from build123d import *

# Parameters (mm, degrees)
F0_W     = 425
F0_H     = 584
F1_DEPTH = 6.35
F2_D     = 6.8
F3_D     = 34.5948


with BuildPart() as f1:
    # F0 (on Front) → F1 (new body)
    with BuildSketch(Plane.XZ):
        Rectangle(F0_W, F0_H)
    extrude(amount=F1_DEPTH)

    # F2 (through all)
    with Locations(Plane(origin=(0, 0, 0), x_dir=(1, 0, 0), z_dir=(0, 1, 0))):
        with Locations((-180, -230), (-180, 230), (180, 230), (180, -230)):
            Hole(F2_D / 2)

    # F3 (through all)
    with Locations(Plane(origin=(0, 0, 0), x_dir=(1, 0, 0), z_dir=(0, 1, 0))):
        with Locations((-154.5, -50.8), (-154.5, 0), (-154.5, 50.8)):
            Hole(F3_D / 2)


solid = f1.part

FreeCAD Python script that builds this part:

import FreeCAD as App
import Part
import Sketcher

V = App.Vector
Q = App.Units.Quantity


def add_polygon(sketch, points):
    """Adds a closed chain of lines whose ends are joined by coincident constraints."""
    first, n = sketch.GeometryCount, len(points)
    for a, b in zip(points, points[1:] + points[:1]):
        sketch.addGeometry(Part.LineSegment(App.Vector(*a, 0), App.Vector(*b, 0)), False)
    for i in range(n):
        sketch.addConstraint(Sketcher.Constraint("Coincident", first + i, 2, first + (i + 1) % n, 1))

doc = App.newDocument("Part")
body = doc.addObject("PartDesign::Body", "Body")

sketch1 = body.newObject("Sketcher::SketchObject", "Sketch")
sketch1.AttachmentSupport = (doc.getObject("XZ_Plane"), [""])
sketch1.MapMode = "FlatFace"
add_polygon(sketch1, [(-212, 292), (-212, -292), (212, -292), (212, 292)])
sketch1.addConstraint(Sketcher.Constraint("Vertical", 0))
sketch1.addConstraint(Sketcher.Constraint("Horizontal", 1))
sketch1.addConstraint(Sketcher.Constraint("Vertical", 2))
sketch1.addConstraint(Sketcher.Constraint("Horizontal", 3))
sketch1.addConstraint(Sketcher.Constraint("Symmetric", 0, 2, 2, 2, -1, 1))
sketch1.addConstraint(Sketcher.Constraint("DistanceX", 1, 1, 1, 2, Q("425 mm")))
sketch1.addConstraint(Sketcher.Constraint("DistanceY", 0, 2, 0, 1, Q("584 mm")))
pad1 = body.newObject("PartDesign::Pad", "Pad")
pad1.Profile = sketch1
pad1.Length = 6.35

sketch2 = body.newObject("Sketcher::SketchObject", "Sketch001")
sketch2.AttachmentSupport = (doc.getObject("XZ_Plane"), [""])
sketch2.MapMode = "FlatFace"
sketch2.addGeometry(Part.Circle(V(-180, 230, 0), V(0, 0, 1), 3.4), False)
sketch2.addGeometry(Part.Circle(V(-180, -230, 0), V(0, 0, 1), 3.4), False)
sketch2.addGeometry(Part.Circle(V(180, -230, 0), V(0, 0, 1), 3.4), False)
sketch2.addGeometry(Part.Circle(V(180, 230, 0), V(0, 0, 1), 3.4), False)
sketch2.addConstraint(Sketcher.Constraint("Equal", 0, 1))
sketch2.addConstraint(Sketcher.Constraint("Equal", 1, 2))
sketch2.addConstraint(Sketcher.Constraint("Equal", 2, 3))
sketch2.addConstraint(Sketcher.Constraint("Symmetric", 0, 3, 2, 3, -1, 1))
sketch2.addConstraint(Sketcher.Constraint("Symmetric", 1, 3, 3, 3, -1, 1))
sketch2.addConstraint(Sketcher.Constraint("Symmetric", 1, 3, 2, 3, -2))
sketch2.addConstraint(Sketcher.Constraint("Diameter", 0, Q("6.8 mm")))
sketch2.addConstraint(Sketcher.Constraint("DistanceX", 0, 3, -1, 1, Q("180 mm")))
sketch2.addConstraint(Sketcher.Constraint("DistanceY", -1, 1, 0, 3, Q("230 mm")))
doc.recompute()
hole = body.newObject("PartDesign::Hole", "Hole")
hole.Profile = sketch2
hole.ThreadType = "None"
hole.Diameter = 6.8
hole.DepthType = "ThroughAll"
hole.Reversed = True

sketch3 = body.newObject("Sketcher::SketchObject", "Sketch002")
sketch3.AttachmentSupport = (doc.getObject("XZ_Plane"), [""])
sketch3.MapMode = "FlatFace"
sketch3.addGeometry(Part.Circle(V(-154, 51, 0), V(0, 0, 1), 17), False)
sketch3.addGeometry(Part.Circle(V(-154, 0, 0), V(0, 0, 1), 17), False)
sketch3.addGeometry(Part.Circle(V(-154, -51, 0), V(0, 0, 1), 17), False)
sketch3.addConstraint(Sketcher.Constraint("Equal", 0, 1))
sketch3.addConstraint(Sketcher.Constraint("Equal", 1, 2))
sketch3.addConstraint(Sketcher.Constraint("Symmetric", 0, 3, 2, 3, -1))
sketch3.addConstraint(Sketcher.Constraint("PointOnObject", 1, 3, -1))
sketch3.addConstraint(Sketcher.Constraint("Vertical", 0, 3, 1, 3))
sketch3.addConstraint(Sketcher.Constraint("Diameter", 0, Q("34.5948 mm")))
sketch3.addConstraint(Sketcher.Constraint("DistanceX", 0, 3, -1, 1, Q("154.5 mm")))
sketch3.addConstraint(Sketcher.Constraint("DistanceY", -1, 1, 0, 3, Q("50.8 mm")))
doc.recompute()
hole2 = body.newObject("PartDesign::Hole", "Hole001")
hole2.Profile = sketch3
hole2.ThreadType = "None"
hole2.Diameter = 34.5948
hole2.DepthType = "ThroughAll"
hole2.Reversed = True

doc.recompute()
